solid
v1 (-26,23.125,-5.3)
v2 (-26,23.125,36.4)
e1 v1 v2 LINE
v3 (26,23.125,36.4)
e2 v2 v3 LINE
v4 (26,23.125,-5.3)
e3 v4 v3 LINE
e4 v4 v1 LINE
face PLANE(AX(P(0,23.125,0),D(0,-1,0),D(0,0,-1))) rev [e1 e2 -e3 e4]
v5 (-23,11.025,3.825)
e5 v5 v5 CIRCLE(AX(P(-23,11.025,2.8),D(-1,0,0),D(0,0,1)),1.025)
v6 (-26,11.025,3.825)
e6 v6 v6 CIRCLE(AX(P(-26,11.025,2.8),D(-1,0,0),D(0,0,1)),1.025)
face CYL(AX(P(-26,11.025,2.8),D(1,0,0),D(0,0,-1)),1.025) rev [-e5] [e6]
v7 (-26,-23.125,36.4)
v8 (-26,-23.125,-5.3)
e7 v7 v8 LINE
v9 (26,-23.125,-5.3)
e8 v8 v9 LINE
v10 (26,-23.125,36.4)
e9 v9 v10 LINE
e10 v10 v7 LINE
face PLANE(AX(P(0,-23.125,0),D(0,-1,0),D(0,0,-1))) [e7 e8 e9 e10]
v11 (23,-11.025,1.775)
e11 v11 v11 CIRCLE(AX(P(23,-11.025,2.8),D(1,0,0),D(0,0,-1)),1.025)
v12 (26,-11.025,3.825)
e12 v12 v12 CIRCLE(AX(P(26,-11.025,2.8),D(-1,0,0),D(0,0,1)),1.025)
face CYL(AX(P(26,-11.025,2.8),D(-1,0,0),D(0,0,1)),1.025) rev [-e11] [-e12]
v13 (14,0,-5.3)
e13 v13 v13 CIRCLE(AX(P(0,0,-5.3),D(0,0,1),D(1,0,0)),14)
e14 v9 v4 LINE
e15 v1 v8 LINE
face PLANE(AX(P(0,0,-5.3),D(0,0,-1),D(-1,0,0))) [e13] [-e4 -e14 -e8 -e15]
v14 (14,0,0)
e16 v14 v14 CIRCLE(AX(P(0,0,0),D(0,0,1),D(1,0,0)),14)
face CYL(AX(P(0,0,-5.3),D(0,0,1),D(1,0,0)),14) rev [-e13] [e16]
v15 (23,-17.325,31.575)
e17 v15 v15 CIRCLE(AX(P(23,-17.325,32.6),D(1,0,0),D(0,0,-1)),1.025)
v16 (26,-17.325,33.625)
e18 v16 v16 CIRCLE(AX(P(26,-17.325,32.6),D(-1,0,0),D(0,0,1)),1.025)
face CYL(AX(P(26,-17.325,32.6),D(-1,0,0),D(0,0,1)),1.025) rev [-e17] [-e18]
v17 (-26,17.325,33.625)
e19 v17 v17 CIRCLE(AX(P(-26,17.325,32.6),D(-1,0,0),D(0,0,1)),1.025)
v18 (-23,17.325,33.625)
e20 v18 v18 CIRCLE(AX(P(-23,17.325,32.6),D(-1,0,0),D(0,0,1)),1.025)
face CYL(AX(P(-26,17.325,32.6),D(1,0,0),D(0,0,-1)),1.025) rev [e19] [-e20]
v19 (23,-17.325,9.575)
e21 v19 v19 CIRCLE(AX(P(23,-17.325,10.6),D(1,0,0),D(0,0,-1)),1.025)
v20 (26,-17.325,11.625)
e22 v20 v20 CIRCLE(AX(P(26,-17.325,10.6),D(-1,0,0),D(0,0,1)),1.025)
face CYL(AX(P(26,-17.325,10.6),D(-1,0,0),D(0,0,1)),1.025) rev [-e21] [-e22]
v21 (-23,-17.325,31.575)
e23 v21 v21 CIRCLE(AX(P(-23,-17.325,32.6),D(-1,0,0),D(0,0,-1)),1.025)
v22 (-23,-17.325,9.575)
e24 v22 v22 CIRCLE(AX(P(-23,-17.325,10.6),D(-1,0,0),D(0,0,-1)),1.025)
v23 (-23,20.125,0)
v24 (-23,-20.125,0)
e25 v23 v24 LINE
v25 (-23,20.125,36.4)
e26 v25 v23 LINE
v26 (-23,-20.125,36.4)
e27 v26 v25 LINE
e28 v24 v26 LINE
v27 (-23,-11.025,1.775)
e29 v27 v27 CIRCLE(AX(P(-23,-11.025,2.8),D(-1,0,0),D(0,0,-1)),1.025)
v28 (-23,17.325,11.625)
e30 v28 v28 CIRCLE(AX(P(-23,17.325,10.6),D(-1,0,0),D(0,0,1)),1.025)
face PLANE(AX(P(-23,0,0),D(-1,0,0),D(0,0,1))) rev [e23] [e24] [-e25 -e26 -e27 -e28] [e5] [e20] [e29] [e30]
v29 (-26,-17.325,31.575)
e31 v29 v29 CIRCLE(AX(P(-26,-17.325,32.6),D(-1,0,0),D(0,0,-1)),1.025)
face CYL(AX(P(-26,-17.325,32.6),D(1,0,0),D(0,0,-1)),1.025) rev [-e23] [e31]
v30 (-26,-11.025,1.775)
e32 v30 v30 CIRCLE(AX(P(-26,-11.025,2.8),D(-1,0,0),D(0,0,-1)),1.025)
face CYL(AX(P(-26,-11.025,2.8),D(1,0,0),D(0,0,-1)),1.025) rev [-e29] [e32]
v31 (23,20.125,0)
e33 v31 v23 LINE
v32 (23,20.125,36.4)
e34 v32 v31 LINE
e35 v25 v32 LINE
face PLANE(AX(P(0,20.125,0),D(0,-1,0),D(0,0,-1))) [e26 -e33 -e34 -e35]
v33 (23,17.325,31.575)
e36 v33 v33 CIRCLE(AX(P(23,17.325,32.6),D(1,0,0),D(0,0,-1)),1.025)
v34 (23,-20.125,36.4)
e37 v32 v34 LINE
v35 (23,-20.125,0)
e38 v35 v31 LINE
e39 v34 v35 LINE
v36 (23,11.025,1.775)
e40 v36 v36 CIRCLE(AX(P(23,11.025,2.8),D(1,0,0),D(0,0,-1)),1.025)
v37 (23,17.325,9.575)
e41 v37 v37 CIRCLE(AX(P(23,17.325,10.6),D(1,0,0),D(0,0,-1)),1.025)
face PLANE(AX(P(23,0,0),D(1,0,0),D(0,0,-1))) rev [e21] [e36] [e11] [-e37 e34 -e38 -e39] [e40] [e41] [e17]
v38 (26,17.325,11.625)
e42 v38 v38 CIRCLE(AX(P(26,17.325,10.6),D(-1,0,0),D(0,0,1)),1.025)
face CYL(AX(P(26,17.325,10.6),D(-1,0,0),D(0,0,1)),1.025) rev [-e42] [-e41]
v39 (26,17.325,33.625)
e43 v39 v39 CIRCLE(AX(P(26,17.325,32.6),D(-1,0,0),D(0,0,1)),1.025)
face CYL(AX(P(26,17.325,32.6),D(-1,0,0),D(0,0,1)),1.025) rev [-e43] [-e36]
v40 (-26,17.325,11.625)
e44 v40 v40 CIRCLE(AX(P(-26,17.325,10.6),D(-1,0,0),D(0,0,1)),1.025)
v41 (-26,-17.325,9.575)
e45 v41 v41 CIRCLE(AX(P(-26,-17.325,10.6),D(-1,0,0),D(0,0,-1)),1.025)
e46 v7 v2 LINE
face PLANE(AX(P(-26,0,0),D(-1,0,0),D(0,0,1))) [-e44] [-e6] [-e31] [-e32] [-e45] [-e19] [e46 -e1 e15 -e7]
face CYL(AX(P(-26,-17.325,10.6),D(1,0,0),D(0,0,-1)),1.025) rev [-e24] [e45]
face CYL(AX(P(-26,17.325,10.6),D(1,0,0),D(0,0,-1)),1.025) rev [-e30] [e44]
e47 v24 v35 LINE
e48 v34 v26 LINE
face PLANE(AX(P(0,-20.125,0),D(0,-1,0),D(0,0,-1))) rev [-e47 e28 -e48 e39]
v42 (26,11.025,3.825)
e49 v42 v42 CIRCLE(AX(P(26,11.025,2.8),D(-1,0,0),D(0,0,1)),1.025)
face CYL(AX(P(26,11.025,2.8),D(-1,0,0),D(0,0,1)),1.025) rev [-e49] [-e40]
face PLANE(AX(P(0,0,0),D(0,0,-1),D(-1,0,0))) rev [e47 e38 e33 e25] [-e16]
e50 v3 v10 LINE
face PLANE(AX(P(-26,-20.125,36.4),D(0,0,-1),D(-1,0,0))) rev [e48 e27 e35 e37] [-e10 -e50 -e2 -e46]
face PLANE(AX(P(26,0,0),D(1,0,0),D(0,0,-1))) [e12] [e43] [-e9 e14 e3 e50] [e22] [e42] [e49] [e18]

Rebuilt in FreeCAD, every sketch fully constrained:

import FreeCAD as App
import Part
import Sketcher

V = App.Vector


def add_polygon(sketch, points):
    """Adds a closed chain of lines whose ends are joined by coincident constraints."""
    first, n = sketch.GeometryCount, len(points)
    for a, b in zip(points, points[1:] + points[:1]):
        sketch.addGeometry(Part.LineSegment(App.Vector(*a, 0), App.Vector(*b, 0)), False)
    for i in range(n):
        sketch.addConstraint(Sketcher.Constraint("Coincident", first + i, 2, first + (i + 1) % n, 1))

doc = App.newDocument("Part")
body = doc.addObject("PartDesign::Body", "Body")

sketch1 = doc.addObject("Sketcher::SketchObject", "Sketch")
body.addObject(sketch1)
sketch1.AttachmentSupport = (doc.XY_Plane, [""])
sketch1.MapMode = "FlatFace"
add_polygon(sketch1, [(-23, 20), (-23, -20), (23, -20), (23, 20)])
sketch1.addGeometry(Part.Circle(V(0, 0, 0), V(0, 0, 1), 14), False)
sketch1.addConstraint(Sketcher.Constraint("Vertical", 0))
sketch1.addConstraint(Sketcher.Constraint("Horizontal", 1))
sketch1.addConstraint(Sketcher.Constraint("Vertical", 2))
sketch1.addConstraint(Sketcher.Constraint("Horizontal", 3))
sketch1.addConstraint(Sketcher.Constraint("Coincident", 4, 3, -1, 1))
sketch1.addConstraint(Sketcher.Constraint("Symmetric", 0, 2, 2, 2, -1, 1))
sketch1.addConstraint(Sketcher.Constraint("Diameter", 4, 28.0))
sketch1.addConstraint(Sketcher.Constraint("DistanceX", 1, 1, 1, 2, 46.0))
sketch1.addConstraint(Sketcher.Constraint("DistanceY", 0, 2, 0, 1, 40.25))
pad1 = doc.addObject("PartDesign::Pad", "Pad")
body.addObject(pad1)
pad1.Profile = sketch1
pad1.Length = 5.3
pad1.Reversed = True

sketch2 = doc.addObject("Sketcher::SketchObject", "Sketch001")
body.addObject(sketch2)
sketch2.AttachmentSupport = (doc.YZ_Plane, [""])
sketch2.MapMode = "FlatFace"
sketch2.AttachmentOffset = App.Placement(V(0, 0, -23), App.Rotation())
add_polygon(sketch2, [(20.1, -5.3), (-20.1, -5.3), (-20.1, 36.4), (20.1, 36.4)])
sketch2.addGeometry(Part.Circle(V(-11, 2.8, 0), V(0, 0, 1), 1), False)
sketch2.addGeometry(Part.Circle(V(-17.3, 10.6, 0), V(0, 0, 1), 1), False)
sketch2.addGeometry(Part.Circle(V(-17.3, 32.6, 0), V(0, 0, 1), 1), False)
sketch2.addGeometry(Part.Circle(V(11, 2.8, 0), V(0, 0, 1), 1), False)
sketch2.addGeometry(Part.Circle(V(17.3, 10.6, 0), V(0, 0, 1), 1), False)
sketch2.addGeometry(Part.Circle(V(17.3, 32.6, 0), V(0, 0, 1), 1), False)
sketch2.addConstraint(Sketcher.Constraint("Horizontal", 0))
sketch2.addConstraint(Sketcher.Constraint("Vertical", 1))
sketch2.addConstraint(Sketcher.Constraint("Horizontal", 2))
sketch2.addConstraint(Sketcher.Constraint("Vertical", 3))
sketch2.addConstraint(Sketcher.Constraint("Equal", 4, 5))
sketch2.addConstraint(Sketcher.Constraint("Equal", 5, 6))
sketch2.addConstraint(Sketcher.Constraint("Equal", 6, 7))
sketch2.addConstraint(Sketcher.Constraint("Equal", 7, 8))
sketch2.addConstraint(Sketcher.Constraint("Equal", 8, 9))
sketch2.addConstraint(Sketcher.Constraint("Symmetric", 4, 3, 7, 3, -2))
sketch2.addConstraint(Sketcher.Constraint("Symmetric", 5, 3, 8, 3, -2))
sketch2.addConstraint(Sketcher.Constraint("Symmetric", 6, 3, 9, 3, -2))
sketch2.addConstraint(Sketcher.Constraint("Vertical", 5, 3, 6, 3))
sketch2.addConstraint(Sketcher.Constraint("Diameter", 4, 2.05))
sketch2.addConstraint(Sketcher.Constraint("DistanceY", 1, 1, 1, 2, 41.7))
sketch2.addConstraint(Sketcher.Constraint("DistanceY", 5, 3, 6, 3, 22.0))
sketch2.addConstraint(Sketcher.Constraint("DistanceX", 0, 2, 0, 1, 40.25))
sketch2.addConstraint(Sketcher.Constraint("DistanceY", -1, 1, 4, 3, 2.8))
sketch2.addConstraint(Sketcher.Constraint("DistanceY", -1, 1, 5, 3, 10.6))
sketch2.addConstraint(Sketcher.Constraint("DistanceY", 0, 2, -1, 1, 5.3))
sketch2.addConstraint(Sketcher.Constraint("DistanceX", 5, 3, 4, 3, 6.3))
sketch2.addConstraint(Sketcher.Constraint("DistanceX", 0, 2, 4, 3, 9.1))
sketch2.addConstraint(Sketcher.Constraint("DistanceX", 9, 3, 2, 2, 2.8))
pad2 = doc.addObject("PartDesign::Pad", "Pad001")
body.addObject(pad2)
pad2.Profile = sketch2
pad2.Length = 3
pad2.Reversed = True

sketch3 = doc.addObject("Sketcher::SketchObject", "Sketch002")
body.addObject(sketch3)
sketch3.AttachmentSupport = (doc.XZ_Plane, [""])
sketch3.MapMode = "FlatFace"
sketch3.AttachmentOffset = App.Placement(V(0, 0, -20.125), App.Rotation())
add_polygon(sketch3, [(-26, -5), (-26, 36), (23, 36), (23, -5)])
sketch3.addConstraint(Sketcher.Constraint("Vertical", 0))
sketch3.addConstraint(Sketcher.Constraint("Horizontal", 1))
sketch3.addConstraint(Sketcher.Constraint("Vertical", 2))
sketch3.addConstraint(Sketcher.Constraint("Horizontal", 3))
sketch3.addConstraint(Sketcher.Constraint("DistanceX", 1, 1, 1, 2, 49.0))
sketch3.addConstraint(Sketcher.Constraint("DistanceY", 0, 1, 0, 2, 41.7))
sketch3.addConstraint(Sketcher.Constraint("DistanceX", 0, 2, -1, 1, 26.0))
sketch3.addConstraint(Sketcher.Constraint("DistanceY", -1, 1, 0, 2, 36.4))
pad3 = doc.addObject("PartDesign::Pad", "Pad002")
body.addObject(pad3)
pad3.Profile = sketch3
pad3.Length = 3
pad3.Reversed = True

sketch4 = doc.addObject("Sketcher::SketchObject", "Sketch003")
body.addObject(sketch4)
sketch4.AttachmentSupport = (doc.YZ_Plane, [""])
sketch4.MapMode = "FlatFace"
sketch4.AttachmentOffset = App.Placement(V(0, 0, 23), App.Rotation())
add_polygon(sketch4, [(23, 36), (-20, 36), (-20, -5), (23, -5)])
sketch4.addConstraint(Sketcher.Constraint("Horizontal", 0))
sketch4.addConstraint(Sketcher.Constraint("Vertical", 1))
sketch4.addConstraint(Sketcher.Constraint("Horizontal", 2))
sketch4.addConstraint(Sketcher.Constraint("Vertical", 3))
sketch4.addConstraint(Sketcher.Constraint("DistanceY", 1, 2, 1, 1, 41.7))
sketch4.addConstraint(Sketcher.Constraint("DistanceX", 0, 2, 0, 1, 43.25))
sketch4.addConstraint(Sketcher.Constraint("DistanceY", -1, 1, 0, 2, 36.4))
sketch4.addConstraint(Sketcher.Constraint("DistanceX", 0, 2, -1, 1, 20.125))
pad4 = doc.addObject("PartDesign::Pad", "Pad003")
body.addObject(pad4)
pad4.Profile = sketch4
pad4.Length = 3

sketch5 = doc.addObject("Sketcher::SketchObject", "Sketch004")
body.addObject(sketch5)
sketch5.AttachmentSupport = (doc.XZ_Plane, [""])
sketch5.MapMode = "FlatFace"
sketch5.AttachmentOffset = App.Placement(V(0, 0, 20.125), App.Rotation())
add_polygon(sketch5, [(26, -5), (26, 36), (-26, 36), (-26, -5)])
sketch5.addConstraint(Sketcher.Constraint("Vertical", 0))
sketch5.addConstraint(Sketcher.Constraint("Horizontal", 1))
sketch5.addConstraint(Sketcher.Constraint("Vertical", 2))
sketch5.addConstraint(Sketcher.Constraint("Horizontal", 3))
sketch5.addConstraint(Sketcher.Constraint("DistanceX", 1, 2, 1, 1, 52.0))
sketch5.addConstraint(Sketcher.Constraint("DistanceY", 0, 1, 0, 2, 41.7))
sketch5.addConstraint(Sketcher.Constraint("DistanceX", -1, 1, 0, 2, 26.0))
sketch5.addConstraint(Sketcher.Constraint("DistanceY", -1, 1, 0, 2, 36.4))
pad5 = doc.addObject("PartDesign::Pad", "Pad004")
body.addObject(pad5)
pad5.Profile = sketch5
pad5.Length = 3

sketch6 = doc.addObject("Sketcher::SketchObject", "Sketch005")
body.addObject(sketch6)
sketch6.AttachmentSupport = (doc.YZ_Plane, [""])
sketch6.MapMode = "FlatFace"
sketch6.AttachmentOffset = App.Placement(V(0, 0, -23), App.Rotation())
sketch6.addGeometry(Part.Circle(V(11, 2.8, 0), V(0, 0, 1), 1), False)
sketch6.addGeometry(Part.Circle(V(17.3, 10.6, 0), V(0, 0, 1), 1), False)
sketch6.addGeometry(Part.Circle(V(17.3, 32.6, 0), V(0, 0, 1), 1), False)
sketch6.addGeometry(Part.Circle(V(-11, 2.8, 0), V(0, 0, 1), 1), False)
sketch6.addGeometry(Part.Circle(V(-17.3, 10.6, 0), V(0, 0, 1), 1), False)
sketch6.addGeometry(Part.Circle(V(-17.3, 32.6, 0), V(0, 0, 1), 1), False)
sketch6.addConstraint(Sketcher.Constraint("Equal", 0, 1))
sketch6.addConstraint(Sketcher.Constraint("Equal", 1, 2))
sketch6.addConstraint(Sketcher.Constraint("Equal", 2, 3))
sketch6.addConstraint(Sketcher.Constraint("Equal", 3, 4))
sketch6.addConstraint(Sketcher.Constraint("Equal", 4, 5))
sketch6.addConstraint(Sketcher.Constraint("Symmetric", 0, 3, 3, 3, -2))
sketch6.addConstraint(Sketcher.Constraint("Symmetric", 1, 3, 4, 3, -2))
sketch6.addConstraint(Sketcher.Constraint("Symmetric", 2, 3, 5, 3, -2))
sketch6.addConstraint(Sketcher.Constraint("Vertical", 1, 3, 2, 3))
sketch6.addConstraint(Sketcher.Constraint("Diameter", 0, 2.05))
sketch6.addConstraint(Sketcher.Constraint("DistanceY", 1, 3, 2, 3, 22.0))
sketch6.addConstraint(Sketcher.Constraint("DistanceY", -1, 1, 0, 3, 2.8))
sketch6.addConstraint(Sketcher.Constraint("DistanceY", -1, 1, 1, 3, 10.6))
sketch6.addConstraint(Sketcher.Constraint("DistanceX", 0, 3, 1, 3, 6.3))
sketch6.addConstraint(Sketcher.Constraint("DistanceX", 3, 3, 0, 3, 22.05))
pocket1 = doc.addObject("PartDesign::Pocket", "Pocket")
body.addObject(pocket1)
pocket1.Profile = sketch6
pocket1.Type = "ThroughAll"
pocket1.Midplane = True

doc.recompute()
